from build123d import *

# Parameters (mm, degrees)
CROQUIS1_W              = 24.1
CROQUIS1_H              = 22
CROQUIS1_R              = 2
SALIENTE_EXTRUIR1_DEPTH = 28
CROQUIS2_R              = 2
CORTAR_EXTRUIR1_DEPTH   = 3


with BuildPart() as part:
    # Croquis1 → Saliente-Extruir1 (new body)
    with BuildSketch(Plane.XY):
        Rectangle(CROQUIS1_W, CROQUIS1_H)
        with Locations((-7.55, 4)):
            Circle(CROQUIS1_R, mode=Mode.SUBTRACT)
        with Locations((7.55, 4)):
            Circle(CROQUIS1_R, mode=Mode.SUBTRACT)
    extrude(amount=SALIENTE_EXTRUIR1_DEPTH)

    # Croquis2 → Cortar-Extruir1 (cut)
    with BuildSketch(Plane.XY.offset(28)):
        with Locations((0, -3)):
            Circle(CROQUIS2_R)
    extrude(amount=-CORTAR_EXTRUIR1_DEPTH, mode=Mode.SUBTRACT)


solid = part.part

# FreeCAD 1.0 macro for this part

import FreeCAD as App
import Part
import Sketcher


def add_polygon(sketch, points):
    """Adds a closed chain of lines whose ends are joined by coincident constraints."""
    first, n = sketch.GeometryCount, len(points)
    for a, b in zip(points, points[1:] + points[:1]):
        sketch.addGeometry(Part.LineSegment(App.Vector(*a, 0), App.Vector(*b, 0)), False)
    for i in range(n):
        sketch.addConstraint(Sketcher.Constraint("Coincident", first + i, 2, first + (i + 1) % n, 1))

doc = App.newDocument("Part")
params = doc.addObject("Spreadsheet::Sheet", "Params")
for row, (alias, value) in enumerate([
    ("sketch1_diameter", "4 mm"),
    ("sketch1_height", "22 mm"),
    ("sketch1_width", "24.1 mm"),
    ("pad1_length", "28 mm"),
    ("sketch2_diameter", "4 mm"),
    ("pocket1_length", "3 mm"),
], start=1):
    params.set(f"A{row}", alias)
    params.set(f"B{row}", "=" + value)
    params.setAlias(f"B{row}", alias)

body = doc.addObject("PartDesign::Body", "Body")

# Sketch on XY plane
sketch1 = doc.addObject("Sketcher::SketchObject", "Sketch")
body.addObject(sketch1)
sketch1.AttachmentSupport = (doc.XY_Plane, [""])
sketch1.MapMode = "FlatFace"
add_polygon(sketch1, [(-12.1, 11), (-12.1, -11), (12.1, -11), (12.1, 11)])  # lines 0-3
sketch1.addGeometry(Part.Circle(App.Vector(-7.5, 4, 0), App.Vector(0, 0, 1), 2), False)  # 4
sketch1.addGeometry(Part.Circle(App.Vector(7.5, 4, 0), App.Vector(0, 0, 1), 2), False)  # 5
sketch1.addConstraint([
    Sketcher.Constraint("Vertical", 0),
    Sketcher.Constraint("Horizontal", 1),
    Sketcher.Constraint("Vertical", 2),
    Sketcher.Constraint("Horizontal", 3),
    Sketcher.Constraint("Equal", 4, 5),
    Sketcher.Constraint("Symmetric", 0, 2, 2, 2, -1, 1),
    Sketcher.Constraint("Symmetric", 4, 3, 5, 3, -2),
    Sketcher.Constraint("Diameter", 4, 4.0),
    Sketcher.Constraint("DistanceY", 0, 2, 0, 1, 22.0),
    Sketcher.Constraint("DistanceX", 1, 1, 1, 2, 24.1),
    Sketcher.Constraint("DistanceY", -1, 1, 4, 3, 4.0),
    Sketcher.Constraint("DistanceX", 4, 3, 5, 3, 15.1),
])
sketch1.setExpression("Constraints[11]", "Params.sketch1_diameter")
sketch1.setExpression("Constraints[12]", "Params.sketch1_height")
sketch1.setExpression("Constraints[13]", "Params.sketch1_width")
pad1 = doc.addObject("PartDesign::Pad", "Pad")
body.addObject(pad1)
pad1.Profile = sketch1
pad1.setExpression("Length", "Params.pad1_length")

# Sketch on XY plane
sketch2 = doc.addObject("Sketcher::SketchObject", "Sketch001")
body.addObject(sketch2)
sketch2.AttachmentSupport = (doc.XY_Plane, [""])
sketch2.MapMode = "FlatFace"
sketch2.AttachmentOffset = App.Placement(App.Vector(0, 0, 28), App.Rotation())
sketch2.addGeometry(Part.Circle(App.Vector(0, -3, 0), App.Vector(0, 0, 1), 2), False)
sketch2.addConstraint([
    Sketcher.Constraint("PointOnObject", 0, 3, -2),
    Sketcher.Constraint("Diameter", 0, 4.0),
    Sketcher.Constraint("DistanceY", 0, 3, -1, 1, 3.0),
])
sketch2.setExpression("Constraints[1]", "Params.sketch2_diameter")
pocket1 = doc.addObject("PartDesign::Pocket", "Pocket")
body.addObject(pocket1)
pocket1.Profile = sketch2
pocket1.setExpression("Length", "Params.pocket1_length")

doc.recompute()
